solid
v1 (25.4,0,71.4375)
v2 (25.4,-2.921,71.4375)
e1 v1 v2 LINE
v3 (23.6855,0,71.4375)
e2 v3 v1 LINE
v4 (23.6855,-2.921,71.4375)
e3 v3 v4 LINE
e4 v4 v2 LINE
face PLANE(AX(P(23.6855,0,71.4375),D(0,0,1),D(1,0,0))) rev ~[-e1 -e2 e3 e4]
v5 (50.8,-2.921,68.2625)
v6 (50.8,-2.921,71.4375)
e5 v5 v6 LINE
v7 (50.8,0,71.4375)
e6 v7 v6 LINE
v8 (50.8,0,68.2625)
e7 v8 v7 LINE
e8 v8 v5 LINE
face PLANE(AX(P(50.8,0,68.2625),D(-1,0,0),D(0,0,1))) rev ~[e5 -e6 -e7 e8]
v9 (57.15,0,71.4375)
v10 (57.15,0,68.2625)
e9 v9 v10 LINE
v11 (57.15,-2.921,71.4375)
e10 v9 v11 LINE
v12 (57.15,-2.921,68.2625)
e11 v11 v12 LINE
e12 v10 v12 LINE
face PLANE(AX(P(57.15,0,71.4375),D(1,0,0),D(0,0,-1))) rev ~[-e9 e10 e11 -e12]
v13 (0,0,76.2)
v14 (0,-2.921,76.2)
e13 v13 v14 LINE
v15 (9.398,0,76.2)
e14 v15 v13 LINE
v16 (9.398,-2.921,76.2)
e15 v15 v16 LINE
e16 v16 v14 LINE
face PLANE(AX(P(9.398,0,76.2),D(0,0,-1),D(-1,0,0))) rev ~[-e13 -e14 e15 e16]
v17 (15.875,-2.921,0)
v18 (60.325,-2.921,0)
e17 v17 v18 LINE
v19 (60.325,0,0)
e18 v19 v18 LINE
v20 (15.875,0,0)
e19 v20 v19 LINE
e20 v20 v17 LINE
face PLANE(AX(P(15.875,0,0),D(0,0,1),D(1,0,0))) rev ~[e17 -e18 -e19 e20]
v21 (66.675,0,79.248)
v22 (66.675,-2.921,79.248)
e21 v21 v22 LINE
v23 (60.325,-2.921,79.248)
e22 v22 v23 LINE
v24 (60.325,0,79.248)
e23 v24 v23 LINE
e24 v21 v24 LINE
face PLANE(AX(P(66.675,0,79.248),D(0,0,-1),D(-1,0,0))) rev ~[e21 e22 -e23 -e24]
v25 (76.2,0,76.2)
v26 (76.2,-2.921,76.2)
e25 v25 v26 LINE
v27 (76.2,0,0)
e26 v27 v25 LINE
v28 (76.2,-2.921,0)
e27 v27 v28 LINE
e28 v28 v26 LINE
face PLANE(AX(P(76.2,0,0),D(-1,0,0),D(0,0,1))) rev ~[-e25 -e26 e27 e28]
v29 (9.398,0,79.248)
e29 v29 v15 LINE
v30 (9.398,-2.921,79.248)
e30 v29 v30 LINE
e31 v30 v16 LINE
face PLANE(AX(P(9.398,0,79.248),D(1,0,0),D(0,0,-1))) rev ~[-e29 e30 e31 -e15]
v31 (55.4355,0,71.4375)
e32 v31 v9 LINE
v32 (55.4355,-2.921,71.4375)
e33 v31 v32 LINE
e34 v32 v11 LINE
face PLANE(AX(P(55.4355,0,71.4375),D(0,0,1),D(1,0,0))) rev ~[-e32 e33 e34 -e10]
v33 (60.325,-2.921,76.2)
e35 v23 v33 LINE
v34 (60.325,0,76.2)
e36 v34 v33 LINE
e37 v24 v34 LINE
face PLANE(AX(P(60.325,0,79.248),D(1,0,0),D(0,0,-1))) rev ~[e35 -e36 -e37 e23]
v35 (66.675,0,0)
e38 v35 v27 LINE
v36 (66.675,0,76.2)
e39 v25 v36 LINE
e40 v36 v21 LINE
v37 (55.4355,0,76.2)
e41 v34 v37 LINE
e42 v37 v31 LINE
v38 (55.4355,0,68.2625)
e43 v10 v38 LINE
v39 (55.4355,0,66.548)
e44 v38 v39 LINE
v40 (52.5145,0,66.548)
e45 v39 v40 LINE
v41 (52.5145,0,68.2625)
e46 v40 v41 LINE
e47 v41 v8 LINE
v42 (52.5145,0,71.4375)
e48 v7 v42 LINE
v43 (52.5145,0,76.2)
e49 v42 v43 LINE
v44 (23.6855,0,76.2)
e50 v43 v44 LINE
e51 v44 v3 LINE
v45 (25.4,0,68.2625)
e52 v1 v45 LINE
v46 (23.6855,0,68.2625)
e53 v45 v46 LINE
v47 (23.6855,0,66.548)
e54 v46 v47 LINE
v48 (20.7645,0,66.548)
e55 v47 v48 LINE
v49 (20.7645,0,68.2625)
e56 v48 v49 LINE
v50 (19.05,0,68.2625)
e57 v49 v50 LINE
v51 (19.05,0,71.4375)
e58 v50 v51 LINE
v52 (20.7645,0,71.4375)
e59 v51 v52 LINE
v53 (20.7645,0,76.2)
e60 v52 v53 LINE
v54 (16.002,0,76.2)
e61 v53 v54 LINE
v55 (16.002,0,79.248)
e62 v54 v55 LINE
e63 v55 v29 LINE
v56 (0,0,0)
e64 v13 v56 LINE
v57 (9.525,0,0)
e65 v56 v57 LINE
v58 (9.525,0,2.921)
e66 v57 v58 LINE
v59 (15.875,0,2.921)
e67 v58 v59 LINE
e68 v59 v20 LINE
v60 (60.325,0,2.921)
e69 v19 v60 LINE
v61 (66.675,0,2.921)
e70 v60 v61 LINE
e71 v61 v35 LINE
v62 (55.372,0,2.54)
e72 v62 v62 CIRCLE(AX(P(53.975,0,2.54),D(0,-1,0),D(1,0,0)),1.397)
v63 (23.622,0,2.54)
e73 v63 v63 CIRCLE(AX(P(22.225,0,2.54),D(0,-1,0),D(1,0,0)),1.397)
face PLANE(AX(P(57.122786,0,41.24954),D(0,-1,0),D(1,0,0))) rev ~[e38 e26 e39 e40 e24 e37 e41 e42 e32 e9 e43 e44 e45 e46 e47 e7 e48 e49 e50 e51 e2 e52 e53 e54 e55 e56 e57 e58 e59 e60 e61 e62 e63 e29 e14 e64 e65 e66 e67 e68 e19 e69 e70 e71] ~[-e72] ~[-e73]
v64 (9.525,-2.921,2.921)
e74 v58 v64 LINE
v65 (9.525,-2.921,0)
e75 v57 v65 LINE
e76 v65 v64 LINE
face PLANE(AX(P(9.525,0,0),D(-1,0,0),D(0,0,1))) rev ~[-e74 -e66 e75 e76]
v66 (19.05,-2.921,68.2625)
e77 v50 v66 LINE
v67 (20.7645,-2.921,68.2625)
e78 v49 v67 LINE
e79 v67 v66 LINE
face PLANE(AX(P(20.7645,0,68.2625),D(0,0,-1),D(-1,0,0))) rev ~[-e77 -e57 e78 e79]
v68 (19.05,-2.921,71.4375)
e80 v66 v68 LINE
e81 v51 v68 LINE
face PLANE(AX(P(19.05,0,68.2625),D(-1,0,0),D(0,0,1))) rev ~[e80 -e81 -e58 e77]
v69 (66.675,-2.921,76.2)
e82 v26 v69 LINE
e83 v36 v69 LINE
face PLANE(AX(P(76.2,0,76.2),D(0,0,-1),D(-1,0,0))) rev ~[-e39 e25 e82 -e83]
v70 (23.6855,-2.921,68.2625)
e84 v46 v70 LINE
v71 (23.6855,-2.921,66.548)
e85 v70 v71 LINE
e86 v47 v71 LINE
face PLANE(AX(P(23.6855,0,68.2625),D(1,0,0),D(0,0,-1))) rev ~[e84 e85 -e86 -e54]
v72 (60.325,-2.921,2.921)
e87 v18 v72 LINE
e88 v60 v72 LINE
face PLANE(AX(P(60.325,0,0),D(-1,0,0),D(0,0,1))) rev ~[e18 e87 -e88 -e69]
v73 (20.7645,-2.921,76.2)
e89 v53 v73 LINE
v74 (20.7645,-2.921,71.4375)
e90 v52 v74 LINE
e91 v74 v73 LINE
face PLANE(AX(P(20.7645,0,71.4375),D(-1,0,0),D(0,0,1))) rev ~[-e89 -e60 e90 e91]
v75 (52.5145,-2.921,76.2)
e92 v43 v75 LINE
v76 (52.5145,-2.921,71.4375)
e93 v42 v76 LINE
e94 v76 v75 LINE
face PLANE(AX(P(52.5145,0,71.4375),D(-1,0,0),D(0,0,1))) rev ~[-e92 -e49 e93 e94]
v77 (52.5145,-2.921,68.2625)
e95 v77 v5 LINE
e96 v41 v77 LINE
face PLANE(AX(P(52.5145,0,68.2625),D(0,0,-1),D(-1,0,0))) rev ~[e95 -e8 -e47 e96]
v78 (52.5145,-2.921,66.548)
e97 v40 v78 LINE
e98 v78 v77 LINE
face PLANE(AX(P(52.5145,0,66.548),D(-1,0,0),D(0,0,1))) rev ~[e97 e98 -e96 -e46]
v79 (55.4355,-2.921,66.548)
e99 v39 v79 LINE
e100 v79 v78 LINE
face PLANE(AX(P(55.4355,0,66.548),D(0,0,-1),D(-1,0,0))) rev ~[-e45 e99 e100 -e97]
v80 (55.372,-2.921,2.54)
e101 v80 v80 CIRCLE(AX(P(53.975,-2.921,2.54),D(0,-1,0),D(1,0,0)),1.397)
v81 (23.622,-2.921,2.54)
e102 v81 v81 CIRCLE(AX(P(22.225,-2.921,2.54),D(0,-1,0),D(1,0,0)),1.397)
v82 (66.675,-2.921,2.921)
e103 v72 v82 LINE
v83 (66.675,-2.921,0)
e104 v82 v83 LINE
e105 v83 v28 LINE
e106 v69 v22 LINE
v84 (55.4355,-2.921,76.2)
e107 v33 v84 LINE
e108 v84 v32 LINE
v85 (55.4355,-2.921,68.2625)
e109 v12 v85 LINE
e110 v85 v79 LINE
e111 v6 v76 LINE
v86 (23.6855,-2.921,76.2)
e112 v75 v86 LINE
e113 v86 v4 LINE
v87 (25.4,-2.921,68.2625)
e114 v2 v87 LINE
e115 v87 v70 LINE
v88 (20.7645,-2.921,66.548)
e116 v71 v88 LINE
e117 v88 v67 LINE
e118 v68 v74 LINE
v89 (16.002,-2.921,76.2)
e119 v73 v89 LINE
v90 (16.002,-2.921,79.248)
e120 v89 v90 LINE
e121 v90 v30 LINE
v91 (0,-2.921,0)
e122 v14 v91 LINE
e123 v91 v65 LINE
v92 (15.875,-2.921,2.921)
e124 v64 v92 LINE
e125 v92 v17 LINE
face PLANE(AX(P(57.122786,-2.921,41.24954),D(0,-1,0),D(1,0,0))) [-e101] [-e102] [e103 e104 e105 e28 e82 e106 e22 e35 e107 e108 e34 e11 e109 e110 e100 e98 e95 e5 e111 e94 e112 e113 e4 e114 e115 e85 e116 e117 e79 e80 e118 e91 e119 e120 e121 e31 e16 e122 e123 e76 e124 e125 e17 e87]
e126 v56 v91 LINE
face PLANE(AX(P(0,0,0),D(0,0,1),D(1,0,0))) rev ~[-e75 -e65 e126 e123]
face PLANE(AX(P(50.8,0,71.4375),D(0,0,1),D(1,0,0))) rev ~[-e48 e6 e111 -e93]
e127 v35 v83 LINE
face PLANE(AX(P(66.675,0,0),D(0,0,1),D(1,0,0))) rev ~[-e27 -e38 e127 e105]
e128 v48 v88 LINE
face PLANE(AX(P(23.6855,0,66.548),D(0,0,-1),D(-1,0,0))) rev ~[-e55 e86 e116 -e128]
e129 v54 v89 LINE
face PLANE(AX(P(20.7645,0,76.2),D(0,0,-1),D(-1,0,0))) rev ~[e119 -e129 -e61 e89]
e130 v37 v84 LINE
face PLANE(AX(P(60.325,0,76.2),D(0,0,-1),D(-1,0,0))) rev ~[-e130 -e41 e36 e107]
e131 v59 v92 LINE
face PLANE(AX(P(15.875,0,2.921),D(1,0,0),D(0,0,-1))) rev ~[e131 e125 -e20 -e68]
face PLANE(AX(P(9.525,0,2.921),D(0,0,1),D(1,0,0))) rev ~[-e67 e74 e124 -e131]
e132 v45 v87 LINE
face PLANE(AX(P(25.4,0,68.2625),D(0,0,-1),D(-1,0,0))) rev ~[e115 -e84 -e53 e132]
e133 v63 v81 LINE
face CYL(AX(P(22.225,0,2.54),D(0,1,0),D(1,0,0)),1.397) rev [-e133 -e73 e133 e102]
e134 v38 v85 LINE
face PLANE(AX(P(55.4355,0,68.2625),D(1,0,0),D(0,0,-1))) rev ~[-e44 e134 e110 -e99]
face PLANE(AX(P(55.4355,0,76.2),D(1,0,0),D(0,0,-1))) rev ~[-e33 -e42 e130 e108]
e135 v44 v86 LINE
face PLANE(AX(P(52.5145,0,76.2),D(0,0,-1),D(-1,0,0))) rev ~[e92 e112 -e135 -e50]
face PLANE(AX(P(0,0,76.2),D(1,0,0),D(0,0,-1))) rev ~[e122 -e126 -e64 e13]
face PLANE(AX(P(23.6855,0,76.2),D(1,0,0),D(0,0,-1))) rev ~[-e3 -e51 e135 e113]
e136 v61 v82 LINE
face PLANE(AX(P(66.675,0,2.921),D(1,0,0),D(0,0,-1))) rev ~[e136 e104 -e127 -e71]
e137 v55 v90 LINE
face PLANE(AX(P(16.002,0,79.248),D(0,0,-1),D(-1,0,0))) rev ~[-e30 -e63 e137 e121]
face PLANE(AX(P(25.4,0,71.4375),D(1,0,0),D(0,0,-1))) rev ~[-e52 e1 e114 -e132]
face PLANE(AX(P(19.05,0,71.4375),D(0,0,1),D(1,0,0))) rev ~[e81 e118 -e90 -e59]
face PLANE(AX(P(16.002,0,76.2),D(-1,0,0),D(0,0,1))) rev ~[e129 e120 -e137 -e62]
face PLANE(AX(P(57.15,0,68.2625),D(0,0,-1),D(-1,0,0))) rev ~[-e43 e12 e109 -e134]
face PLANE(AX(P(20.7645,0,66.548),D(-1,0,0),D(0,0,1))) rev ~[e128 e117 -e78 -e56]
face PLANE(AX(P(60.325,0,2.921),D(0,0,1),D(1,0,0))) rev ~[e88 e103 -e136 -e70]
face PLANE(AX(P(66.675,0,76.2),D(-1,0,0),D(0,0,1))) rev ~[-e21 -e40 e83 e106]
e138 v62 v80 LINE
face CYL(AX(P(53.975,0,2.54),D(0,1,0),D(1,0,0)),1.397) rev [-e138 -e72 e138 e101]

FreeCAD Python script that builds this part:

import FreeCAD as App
import Part
import Sketcher
from FreeCAD import Vector
Q = App.Units.Quantity


def add_polygon(sketch, points):
    """Adds a closed chain of lines whose ends are joined by coincident constraints."""
    first, n = sketch.GeometryCount, len(points)
    for a, b in zip(points, points[1:] + points[:1]):
        sketch.addGeometry(Part.LineSegment(App.Vector(*a, 0), App.Vector(*b, 0)), False)
    for i in range(n):
        sketch.addConstraint(Sketcher.Constraint("Coincident", first + i, 2, first + (i + 1) % n, 1))

doc = App.newDocument("Part")
body = doc.addObject("PartDesign::Body", "Body")

# Sketch on XZ plane
sketch1 = body.newObject("Sketcher::SketchObject", "Sketch")
sketch1.AttachmentSupport = (doc.getObject("XZ_Plane"), [""])
sketch1.MapMode = "FlatFace"
add_polygon(sketch1, [(52.5, 76.2), (23.7, 76.2), (23.7, 71.4), (25.4, 71.4), (25.4, 68.3), (23.7, 68.3), (23.7, 66.5), (20.8, 66.5), (20.8, 68.3), (19.1, 68.3), (19.1, 71.4), (20.8, 71.4), (20.8, 76.2), (16, 76.2), (16, 79.2), (9.4, 79.2), (9.4, 76.2), (0, 76.2), (0, 0), (9.5, 0), (9.5, 2.9), (15.9, 2.9), (15.9, 0), (60.3, 0), (60.3, 2.9), (66.7, 2.9), (66.7, 0), (76.2, 0), (76.2, 76.2), (66.7, 76.2), (66.7, 79.2), (60.3, 79.2), (60.3, 76.2), (55.4, 76.2), (55.4, 71.4), (57.1, 71.4), (57.1, 68.3), (55.4, 68.3), (55.4, 66.5), (52.5, 66.5), (52.5, 68.3), (50.8, 68.3), (50.8, 71.4), (52.5, 71.4)])  # lines 0-43
sketch1.addGeometry(Part.Circle(Vector(22.2, 2.5, 0), Vector(0, 0, 1), 1.4), False)  # 44
sketch1.addGeometry(Part.Circle(Vector(54, 2.5, 0), Vector(0, 0, 1), 1.4), False)  # 45
sketch1.addConstraint([
    Sketcher.Constraint("Horizontal", 0),
    Sketcher.Constraint("Vertical", 1),
    Sketcher.Constraint("Horizontal", 2),
    Sketcher.Constraint("Vertical", 3),
    Sketcher.Constraint("Horizontal", 4),
    Sketcher.Constraint("Vertical", 5),
    Sketcher.Constraint("Horizontal", 6),
    Sketcher.Constraint("Vertical", 7),
    Sketcher.Constraint("Horizontal", 8),
    Sketcher.Constraint("Vertical", 9),
    Sketcher.Constraint("Horizontal", 10),
    Sketcher.Constraint("Vertical", 11),
    Sketcher.Constraint("Horizontal", 12),
    Sketcher.Constraint("Vertical", 13),
    Sketcher.Constraint("Horizontal", 14),
    Sketcher.Constraint("Vertical", 15),
    Sketcher.Constraint("Horizontal", 16),
    Sketcher.Constraint("Vertical", 17),
    Sketcher.Constraint("Horizontal", 18),
    Sketcher.Constraint("Vertical", 19),
    Sketcher.Constraint("Horizontal", 20),
    Sketcher.Constraint("Vertical", 21),
    Sketcher.Constraint("Horizontal", 22),
    Sketcher.Constraint("Vertical", 23),
    Sketcher.Constraint("Horizontal", 24),
    Sketcher.Constraint("Vertical", 25),
    Sketcher.Constraint("Horizontal", 26),
    Sketcher.Constraint("Vertical", 27),
    Sketcher.Constraint("Horizontal", 28),
    Sketcher.Constraint("Vertical", 29),
    Sketcher.Constraint("Horizontal", 30),
    Sketcher.Constraint("Vertical", 31),
    Sketcher.Constraint("Horizontal", 32),
    Sketcher.Constraint("Vertical", 33),
    Sketcher.Constraint("Horizontal", 34),
    Sketcher.Constraint("Vertical", 35),
    Sketcher.Constraint("Horizontal", 36),
    Sketcher.Constraint("Vertical", 37),
    Sketcher.Constraint("Horizontal", 38),
    Sketcher.Constraint("Vertical", 39),
    Sketcher.Constraint("Horizontal", 40),
    Sketcher.Constraint("Vertical", 41),
    Sketcher.Constraint("Horizontal", 42),
    Sketcher.Constraint("Vertical", 43),
    Sketcher.Constraint("Coincident", 17, 2, -1, 1),
    Sketcher.Constraint("Equal", 44, 45),
    Sketcher.Constraint("PointOnObject", 21, 2, -1),
    Sketcher.Constraint("PointOnObject", 25, 2, -1),
    Sketcher.Constraint("Horizontal", 44, 3, 45, 3),
    Sketcher.Constraint("Horizontal", 4, 2, 7, 2),
    Sketcher.Constraint("Horizontal", 2, 2, 9, 2),
    Sketcher.Constraint("Horizontal", 0, 2, 11, 2),
    Sketcher.Constraint("Horizontal", 12, 2, 15, 2),
    Sketcher.Constraint("Horizontal", 20, 2, 23, 2),
    Sketcher.Constraint("Horizontal", 16, 2, 27, 2),
    Sketcher.Constraint("Horizontal", 14, 2, 29, 2),
    Sketcher.Constraint("Horizontal", 28, 2, 31, 2),
    Sketcher.Constraint("Horizontal", 10, 2, 33, 2),
    Sketcher.Constraint("Horizontal", 8, 2, 35, 2),
    Sketcher.Constraint("Horizontal", 6, 2, 37, 2),
    Sketcher.Constraint("Horizontal", 36, 2, 39, 2),
    Sketcher.Constraint("Horizontal", 34, 2, 41, 2),
    Sketcher.Constraint("Vertical", 1, 2, 4, 2),
    Sketcher.Constraint("Vertical", 7, 2, 10, 2),
    Sketcher.Constraint("Vertical", 25, 2, 28, 2),
    Sketcher.Constraint("Vertical", 23, 2, 30, 2),
    Sketcher.Constraint("Vertical", 33, 2, 36, 2),
    Sketcher.Constraint("Vertical", 39, 2, 42, 2),
    Sketcher.Constraint("Equal", 4, 8),
    Sketcher.Constraint("Equal", 20, 24),
    Sketcher.Constraint("Equal", 18, 26),
    Sketcher.Constraint("Equal", 10, 34),
    Sketcher.Constraint("Equal", 6, 38),
    Sketcher.Constraint("Equal", 36, 40),
    Sketcher.Constraint("Equal", 12, 1),
    Sketcher.Constraint("Equal", 42, 5),
    Sketcher.Constraint("Equal", 38, 19),
    Sketcher.Constraint("Diameter", 44, Q("0.11 in")),
    Sketcher.Constraint("DistanceY", 17, 2, 17, 1, Q("3 in")),
    Sketcher.Constraint("DistanceX", -1, 1, 2, 2, Q("1 in")),
    Sketcher.Constraint("DistanceX", -1, 1, 26, 2, Q("3 in")),
    Sketcher.Constraint("DistanceX", -1, 1, 40, 2, Q("2 in")),
    Sketcher.Constraint("DistanceX", 18, 2, 22, 2, Q("2 in")),
    Sketcher.Constraint("DistanceX", 14, 2, 14, 1, Q("0.26 in")),
    Sketcher.Constraint("DistanceX", 16, 2, 16, 1, Q("0.37 in")),
    Sketcher.Constraint("DistanceX", 20, 1, 20, 2, Q("0.25 in")),
    Sketcher.Constraint("DistanceY", 13, 1, 13, 2, Q("0.12 in")),
    Sketcher.Constraint("DistanceY", -1, 1, 44, 3, Q("0.1 in")),
    Sketcher.Constraint("DistanceX", 18, 2, 44, 3, Q("0.5 in")),
    Sketcher.Constraint("DistanceX", 20, 2, 45, 3, Q("1.5 in")),
    Sketcher.Constraint("DistanceX", 0, 2, 0, 1, Q("1.135 in")),
    Sketcher.Constraint("DistanceX", 6, 2, 6, 1, Q("0.115 in")),
    Sketcher.Constraint("DistanceY", 3, 2, 3, 1, Q("0.125 in")),
])
pad1 = body.newObject("PartDesign::Pad", "Pad")
pad1.Profile = sketch1
pad1.Length = Q("0.115 in")

doc.recompute()
